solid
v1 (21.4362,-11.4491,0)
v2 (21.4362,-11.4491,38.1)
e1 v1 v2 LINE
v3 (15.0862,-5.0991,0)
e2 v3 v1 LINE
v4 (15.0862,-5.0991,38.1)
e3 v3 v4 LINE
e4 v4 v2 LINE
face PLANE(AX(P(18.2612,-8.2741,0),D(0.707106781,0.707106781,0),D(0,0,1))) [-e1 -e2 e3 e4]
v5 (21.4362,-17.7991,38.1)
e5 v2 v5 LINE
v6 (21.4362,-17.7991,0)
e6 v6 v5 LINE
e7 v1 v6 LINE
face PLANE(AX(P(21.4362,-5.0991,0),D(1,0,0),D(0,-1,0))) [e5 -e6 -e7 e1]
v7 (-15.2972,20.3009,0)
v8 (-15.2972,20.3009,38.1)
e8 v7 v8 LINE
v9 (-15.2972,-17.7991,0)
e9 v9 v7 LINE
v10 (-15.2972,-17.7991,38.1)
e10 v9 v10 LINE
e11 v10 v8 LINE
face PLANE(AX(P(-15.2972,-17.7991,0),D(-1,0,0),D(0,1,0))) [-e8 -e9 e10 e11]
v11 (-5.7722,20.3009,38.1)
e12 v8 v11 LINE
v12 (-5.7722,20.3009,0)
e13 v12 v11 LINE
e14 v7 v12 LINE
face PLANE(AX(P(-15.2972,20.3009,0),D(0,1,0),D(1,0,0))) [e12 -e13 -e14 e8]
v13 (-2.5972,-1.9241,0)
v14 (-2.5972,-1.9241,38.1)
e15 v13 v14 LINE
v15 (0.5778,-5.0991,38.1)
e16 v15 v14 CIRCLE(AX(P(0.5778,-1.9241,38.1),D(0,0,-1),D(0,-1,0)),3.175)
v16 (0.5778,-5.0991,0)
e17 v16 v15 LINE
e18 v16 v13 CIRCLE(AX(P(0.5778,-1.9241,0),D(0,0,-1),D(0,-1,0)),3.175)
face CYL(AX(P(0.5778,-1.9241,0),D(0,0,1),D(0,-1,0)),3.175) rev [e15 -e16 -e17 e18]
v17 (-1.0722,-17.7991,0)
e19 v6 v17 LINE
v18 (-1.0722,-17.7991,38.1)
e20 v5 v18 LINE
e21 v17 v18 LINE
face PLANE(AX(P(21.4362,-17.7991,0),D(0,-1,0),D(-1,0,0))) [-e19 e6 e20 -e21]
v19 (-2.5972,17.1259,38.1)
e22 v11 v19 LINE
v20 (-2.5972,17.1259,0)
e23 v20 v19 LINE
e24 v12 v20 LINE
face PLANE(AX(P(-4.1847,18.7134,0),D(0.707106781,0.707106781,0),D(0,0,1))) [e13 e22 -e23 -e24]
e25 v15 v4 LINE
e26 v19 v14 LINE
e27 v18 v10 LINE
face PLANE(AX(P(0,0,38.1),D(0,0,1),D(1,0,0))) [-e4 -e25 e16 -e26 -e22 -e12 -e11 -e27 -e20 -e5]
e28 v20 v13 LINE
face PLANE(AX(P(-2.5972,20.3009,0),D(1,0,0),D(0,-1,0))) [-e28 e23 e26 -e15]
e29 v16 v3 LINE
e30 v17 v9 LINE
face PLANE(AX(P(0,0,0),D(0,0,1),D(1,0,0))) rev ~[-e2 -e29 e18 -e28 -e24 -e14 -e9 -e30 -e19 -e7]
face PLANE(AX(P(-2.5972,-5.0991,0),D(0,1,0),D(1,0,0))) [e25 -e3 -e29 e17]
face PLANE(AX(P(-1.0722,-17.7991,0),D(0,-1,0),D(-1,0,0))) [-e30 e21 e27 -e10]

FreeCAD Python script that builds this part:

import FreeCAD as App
import Part
import Sketcher
from FreeCAD import Vector
Q = App.Units.Quantity


def edges_at(feature, points):
    """Names of the edges that pass closest to the given points."""
    edges = feature.Shape.Edges
    near = lambda p: min(range(len(edges)), key=lambda i: edges[i].distToShape(Part.Vertex(*p))[0])
    return sorted({f"Edge{near(p) + 1}" for p in points})

doc = App.newDocument("Part")
body = doc.addObject("PartDesign::Body", "Body")

sketch1 = body.newObject("Sketcher::SketchObject", "Sketch")
sketch1.AttachmentSupport = (doc.getObject("XY_Plane"), [""])
sketch1.MapMode = "FlatFace"
sketch1.addGeometry([
    Part.LineSegment(Vector(-3, 20, 0), Vector(-15, 20, 0)),
    Part.LineSegment(Vector(-15, 20, 0), Vector(-15, -18, 0)),
    Part.LineSegment(Vector(-15, -18, 0), Vector(21, -18, 0)),
    Part.LineSegment(Vector(21, -18, 0), Vector(21, -5, 0)),
    Part.LineSegment(Vector(21, -5, 0), Vector(-3, -5, 0)),
    Part.LineSegment(Vector(-3, -5, 0), Vector(-3, 20, 0)),
], False)
sketch1.addConstraint([
    Sketcher.Constraint("Coincident", 0, 2, 1, 1),
    Sketcher.Constraint("Coincident", 1, 2, 2, 1),
    Sketcher.Constraint("Coincident", 2, 2, 3, 1),
    Sketcher.Constraint("Coincident", 3, 2, 4, 1),
    Sketcher.Constraint("Coincident", 4, 2, 5, 1),
    Sketcher.Constraint("Coincident", 5, 2, 0, 1),
    Sketcher.Constraint("Horizontal", 0),
    Sketcher.Constraint("Vertical", 1),
    Sketcher.Constraint("Horizontal", 2),
    Sketcher.Constraint("Vertical", 3),
    Sketcher.Constraint("Horizontal", 4),
    Sketcher.Constraint("Vertical", 5),
    Sketcher.Constraint("Equal", 0, 3),
    Sketcher.Constraint("DistanceY", 5, 1, 5, 2, Q("1 in")),
    Sketcher.Constraint("DistanceX", 0, 2, 0, 1, Q("0.5 in")),
    Sketcher.Constraint("DistanceX", 2, 1, 2, 2, Q("1.4462 in")),
    Sketcher.Constraint("DistanceX", 0, 2, -1, 1, 15.2972),
    Sketcher.Constraint("DistanceY", -1, 1, 0, 2, 20.301),
])
pad1 = body.newObject("PartDesign::Pad", "Pad")
pad1.Profile = sketch1
pad1.Length = Q("1.5 in")
doc.recompute()

chamfer = body.newObject("PartDesign::Chamfer", "Chamfer")
chamfer.Base = (pad1, edges_at(pad1, [(-2.597, 20.301, 19.05)]))
chamfer.Size = Q("0.125 in")
doc.recompute()

chamfer2 = body.newObject("PartDesign::Chamfer", "Chamfer001")
chamfer2.Base = (chamfer, edges_at(chamfer, [(21.436, -5.099, 19.05)]))
chamfer2.Size = Q("0.25 in")
doc.recompute()

fillet = body.newObject("PartDesign::Fillet", "Fillet")
fillet.Base = (chamfer2, edges_at(chamfer2, [(-2.597, -5.099, 19.05)]))
fillet.Radius = Q("0.125 in")

doc.recompute()
